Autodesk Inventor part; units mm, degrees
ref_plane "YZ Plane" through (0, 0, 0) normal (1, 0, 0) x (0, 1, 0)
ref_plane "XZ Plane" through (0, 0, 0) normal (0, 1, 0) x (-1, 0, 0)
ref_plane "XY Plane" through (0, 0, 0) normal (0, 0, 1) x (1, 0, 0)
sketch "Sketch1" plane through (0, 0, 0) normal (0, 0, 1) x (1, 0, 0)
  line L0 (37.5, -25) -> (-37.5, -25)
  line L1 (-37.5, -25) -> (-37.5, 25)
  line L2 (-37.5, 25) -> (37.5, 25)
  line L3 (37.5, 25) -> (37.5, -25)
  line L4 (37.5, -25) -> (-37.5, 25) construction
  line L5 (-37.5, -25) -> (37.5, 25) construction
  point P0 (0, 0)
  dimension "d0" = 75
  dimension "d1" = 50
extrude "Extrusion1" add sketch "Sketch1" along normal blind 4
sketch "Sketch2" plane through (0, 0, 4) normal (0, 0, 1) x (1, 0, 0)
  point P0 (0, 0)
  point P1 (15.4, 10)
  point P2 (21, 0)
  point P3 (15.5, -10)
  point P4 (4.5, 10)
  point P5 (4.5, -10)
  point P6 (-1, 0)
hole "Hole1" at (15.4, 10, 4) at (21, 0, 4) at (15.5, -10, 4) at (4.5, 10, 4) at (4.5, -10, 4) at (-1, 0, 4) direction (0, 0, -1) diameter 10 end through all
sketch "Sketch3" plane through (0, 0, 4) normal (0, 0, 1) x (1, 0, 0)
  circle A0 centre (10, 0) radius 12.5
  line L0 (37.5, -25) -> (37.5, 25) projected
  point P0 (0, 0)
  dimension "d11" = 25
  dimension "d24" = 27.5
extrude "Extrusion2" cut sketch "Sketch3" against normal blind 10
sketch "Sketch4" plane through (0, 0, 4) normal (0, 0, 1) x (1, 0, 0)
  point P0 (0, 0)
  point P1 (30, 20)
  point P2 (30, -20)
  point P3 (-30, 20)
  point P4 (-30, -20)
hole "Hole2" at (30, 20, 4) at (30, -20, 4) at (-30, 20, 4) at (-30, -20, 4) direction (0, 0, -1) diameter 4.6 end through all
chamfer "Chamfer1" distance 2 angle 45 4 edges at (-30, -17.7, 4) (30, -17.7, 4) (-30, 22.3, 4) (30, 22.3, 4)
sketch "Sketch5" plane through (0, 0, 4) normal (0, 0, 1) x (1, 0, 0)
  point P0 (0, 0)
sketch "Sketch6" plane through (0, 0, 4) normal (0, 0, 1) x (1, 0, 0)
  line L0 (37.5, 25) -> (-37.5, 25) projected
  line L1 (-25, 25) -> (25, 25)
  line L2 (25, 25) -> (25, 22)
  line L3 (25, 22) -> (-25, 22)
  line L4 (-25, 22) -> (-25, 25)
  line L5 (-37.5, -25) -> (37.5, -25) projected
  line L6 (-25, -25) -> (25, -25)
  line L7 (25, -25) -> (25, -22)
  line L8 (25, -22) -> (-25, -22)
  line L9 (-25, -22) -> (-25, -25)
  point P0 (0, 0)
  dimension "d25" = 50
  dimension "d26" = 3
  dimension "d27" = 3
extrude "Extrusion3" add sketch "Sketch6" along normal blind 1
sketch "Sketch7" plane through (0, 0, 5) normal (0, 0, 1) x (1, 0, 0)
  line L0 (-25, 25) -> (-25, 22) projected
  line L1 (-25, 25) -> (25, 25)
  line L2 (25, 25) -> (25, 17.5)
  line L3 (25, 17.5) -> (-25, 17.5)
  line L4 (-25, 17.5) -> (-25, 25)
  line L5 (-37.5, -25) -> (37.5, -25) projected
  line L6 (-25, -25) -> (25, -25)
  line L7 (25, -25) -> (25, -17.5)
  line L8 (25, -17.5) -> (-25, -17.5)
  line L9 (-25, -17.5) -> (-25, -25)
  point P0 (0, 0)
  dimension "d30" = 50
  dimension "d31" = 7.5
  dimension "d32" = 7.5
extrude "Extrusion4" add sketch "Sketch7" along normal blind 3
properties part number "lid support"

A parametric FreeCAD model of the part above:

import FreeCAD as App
import Part
import Sketcher

V = App.Vector


def edges_at(feature, points):
    """Names of the edges that pass closest to the given points."""
    edges = feature.Shape.Edges
    near = lambda p: min(range(len(edges)), key=lambda i: edges[i].distToShape(Part.Vertex(*p))[0])
    return sorted({f"Edge{near(p) + 1}" for p in points})

doc = App.newDocument("Part")
body = doc.addObject("PartDesign::Body", "Body")

# Sketch on XY plane
sketch1 = body.newObject("Sketcher::SketchObject", "Sketch")
sketch1.AttachmentSupport = (doc.getObject("XY_Plane"), [""])
sketch1.MapMode = "FlatFace"
sketch1.addGeometry([
    Part.LineSegment(V(-37.5, -25, 0), V(37.5, -25, 0)),
    Part.LineSegment(V(37.5, -25, 0), V(37.5, 25, 0)),
    Part.LineSegment(V(37.5, 25, 0), V(-37.5, 25, 0)),
    Part.LineSegment(V(-37.5, 25, 0), V(-37.5, -25, 0)),
], False)
sketch1.addConstraint([
    Sketcher.Constraint("Coincident", 0, 2, 1, 1),
    Sketcher.Constraint("Coincident", 1, 2, 2, 1),
    Sketcher.Constraint("Coincident", 2, 2, 3, 1),
    Sketcher.Constraint("Coincident", 3, 2, 0, 1),
    Sketcher.Constraint("Horizontal", 0),
    Sketcher.Constraint("Vertical", 1),
    Sketcher.Constraint("Horizontal", 2),
    Sketcher.Constraint("Vertical", 3),
    Sketcher.Constraint("Symmetric", 0, 2, 2, 2, -1, 1),
    Sketcher.Constraint("DistanceX", 0, 1, 0, 2, 75.0),
    Sketcher.Constraint("DistanceY", 1, 1, 1, 2, 50.0),
])
pad1 = body.newObject("PartDesign::Pad", "Pad")
pad1.Profile = sketch1
pad1.Length = 4

# Sketch on XY plane
sketch2 = body.newObject("Sketcher::SketchObject", "Sketch001")
sketch2.AttachmentSupport = (doc.getObject("XY_Plane"), [""])
sketch2.MapMode = "FlatFace"
sketch2.AttachmentOffset = App.Placement(V(0, 0, 4), App.Rotation())
sketch2.addGeometry([
    Part.Circle(V(15.4, 10, 0), V(0, 0, 1), 5),  # 0
    Part.Circle(V(21, 0, 0), V(0, 0, 1), 5),  # 1
    Part.Circle(V(15.5, -10, 0), V(0, 0, 1), 5),  # 2
    Part.Circle(V(4.5, 10, 0), V(0, 0, 1), 5),  # 3
    Part.Circle(V(4.5, -10, 0), V(0, 0, 1), 5),  # 4
    Part.Circle(V(-1, 0, 0), V(0, 0, 1), 5),  # 5
], False)
sketch2.addConstraint([
    Sketcher.Constraint("Equal", 0, 1),
    Sketcher.Constraint("Equal", 1, 2),
    Sketcher.Constraint("Equal", 2, 3),
    Sketcher.Constraint("Equal", 3, 4),
    Sketcher.Constraint("Equal", 4, 5),
    Sketcher.Constraint("Symmetric", 3, 3, 4, 3, -1),
    Sketcher.Constraint("PointOnObject", 1, 3, -1),
    Sketcher.Constraint("PointOnObject", 5, 3, -1),
    Sketcher.Constraint("Horizontal", 0, 3, 3, 3),
    Sketcher.Constraint("Horizontal", 2, 3, 4, 3),
    Sketcher.Constraint("Diameter", 0, 10.0),
    Sketcher.Constraint("DistanceY", -1, 1, 0, 3, 10.0),
    Sketcher.Constraint("DistanceX", -1, 1, 1, 3, 21.0),
    Sketcher.Constraint("DistanceX", 5, 3, -1, 1, 1.0),
    Sketcher.Constraint("DistanceX", 3, 3, 2, 3, 11.0),
    Sketcher.Constraint("DistanceX", -1, 1, 0, 3, 15.4),
    Sketcher.Constraint("DistanceX", -1, 1, 2, 3, 15.5),
])
doc.recompute()
hole = body.newObject("PartDesign::Hole", "Hole")
hole.Profile = sketch2
hole.ThreadType = "None"
hole.Diameter = 10
hole.DepthType = "ThroughAll"

# Sketch on XY plane
sketch3 = body.newObject("Sketcher::SketchObject", "Sketch002")
sketch3.AttachmentSupport = (doc.getObject("XY_Plane"), [""])
sketch3.MapMode = "FlatFace"
sketch3.AttachmentOffset = App.Placement(V(0, 0, 4), App.Rotation())
sketch3.addGeometry(Part.Circle(V(10, 0, 0), V(0, 0, 1), 12.5), False)
sketch3.addConstraint([
    Sketcher.Constraint("PointOnObject", 0, 3, -1),
    Sketcher.Constraint("Diameter", 0, 25.0),
    Sketcher.Constraint("DistanceX", -1, 1, 0, 3, 10.0),
])
pocket1 = body.newObject("PartDesign::Pocket", "Pocket")
pocket1.Profile = sketch3
pocket1.Length = 10

# Sketch on XY plane
sketch4 = body.newObject("Sketcher::SketchObject", "Sketch003")
sketch4.AttachmentSupport = (doc.getObject("XY_Plane"), [""])
sketch4.MapMode = "FlatFace"
sketch4.AttachmentOffset = App.Placement(V(0, 0, 4), App.Rotation())
sketch4.addGeometry([
    Part.Circle(V(30, 20, 0), V(0, 0, 1), 2.3),
    Part.Circle(V(30, -20, 0), V(0, 0, 1), 2.3),
    Part.Circle(V(-30, 20, 0), V(0, 0, 1), 2.3),
    Part.Circle(V(-30, -20, 0), V(0, 0, 1), 2.3),
], False)
sketch4.addConstraint([
    Sketcher.Constraint("Equal", 0, 1),
    Sketcher.Constraint("Equal", 1, 2),
    Sketcher.Constraint("Equal", 2, 3),
    Sketcher.Constraint("Symmetric", 1, 3, 2, 3, -1, 1),
    Sketcher.Constraint("Symmetric", 0, 3, 3, 3, -1, 1),
    Sketcher.Constraint("Symmetric", 0, 3, 2, 3, -2),
    Sketcher.Constraint("Diameter", 0, 4.6),
    Sketcher.Constraint("DistanceX", -1, 1, 0, 3, 30.0),
    Sketcher.Constraint("DistanceY", -1, 1, 0, 3, 20.0),
])
doc.recompute()
hole2 = body.newObject("PartDesign::Hole", "Hole001")
hole2.Profile = sketch4
hole2.ThreadType = "None"
hole2.Diameter = 4.6
hole2.DepthType = "ThroughAll"
doc.recompute()

chamfer = body.newObject("PartDesign::Chamfer", "Chamfer")
chamfer.Base = (hole2, edges_at(hole2, [
    (-30, -17.7, 4),
    (30, -17.7, 4),
    (-30, 22.3, 4),
    (30, 22.3, 4),
]))
chamfer.Size = 2

# Sketch on XY plane
sketch5 = body.newObject("Sketcher::SketchObject", "Sketch004")
sketch5.AttachmentSupport = (doc.getObject("XY_Plane"), [""])
sketch5.MapMode = "FlatFace"
sketch5.AttachmentOffset = App.Placement(V(0, 0, 4), App.Rotation())
sketch5.addGeometry([
    Part.LineSegment(V(25, 22, 0), V(25, 25, 0)),  # 0
    Part.LineSegment(V(25, 25, 0), V(-25, 25, 0)),  # 1
    Part.LineSegment(V(-25, 25, 0), V(-25, 22, 0)),  # 2
    Part.LineSegment(V(-25, 22, 0), V(25, 22, 0)),  # 3
    Part.LineSegment(V(-25, -22, 0), V(-25, -25, 0)),  # 4
    Part.LineSegment(V(-25, -25, 0), V(25, -25, 0)),  # 5
    Part.LineSegment(V(25, -25, 0), V(25, -22, 0)),  # 6
    Part.LineSegment(V(25, -22, 0), V(-25, -22, 0)),  # 7
], False)
sketch5.addConstraint([
    Sketcher.Constraint("Coincident", 0, 2, 1, 1),
    Sketcher.Constraint("Coincident", 1, 2, 2, 1),
    Sketcher.Constraint("Coincident", 2, 2, 3, 1),
    Sketcher.Constraint("Coincident", 3, 2, 0, 1),
    Sketcher.Constraint("Coincident", 4, 2, 5, 1),
    Sketcher.Constraint("Coincident", 5, 2, 6, 1),
    Sketcher.Constraint("Coincident", 6, 2, 7, 1),
    Sketcher.Constraint("Coincident", 7, 2, 4, 1),
    Sketcher.Constraint("Vertical", 0),
    Sketcher.Constraint("Horizontal", 1),
    Sketcher.Constraint("Vertical", 2),
    Sketcher.Constraint("Horizontal", 3),
    Sketcher.Constraint("Vertical", 4),
    Sketcher.Constraint("Horizontal", 5),
    Sketcher.Constraint("Vertical", 6),
    Sketcher.Constraint("Horizontal", 7),
    Sketcher.Constraint("Symmetric", 0, 2, 4, 2, -1, 1),
    Sketcher.Constraint("Symmetric", 2, 2, 6, 2, -1, 1),
    Sketcher.Constraint("Vertical", 2, 2, 4, 2),
    Sketcher.Constraint("DistanceX", 1, 2, 1, 1, 50.0),
    Sketcher.Constraint("DistanceY", 0, 1, 0, 2, 3.0),
    Sketcher.Constraint("DistanceY", 4, 2, 1, 2, 50.0),
])
pad2 = body.newObject("PartDesign::Pad", "Pad001")
pad2.Profile = sketch5
pad2.Length = 1

# Sketch on XY plane
sketch6 = body.newObject("Sketcher::SketchObject", "Sketch005")
sketch6.AttachmentSupport = (doc.getObject("XY_Plane"), [""])
sketch6.MapMode = "FlatFace"
sketch6.AttachmentOffset = App.Placement(V(0, 0, 5), App.Rotation())
sketch6.addGeometry([
    Part.LineSegment(V(25, 25, 0), V(-25, 25, 0)),  # 0
    Part.LineSegment(V(-25, 25, 0), V(-25, 17.5, 0)),  # 1
    Part.LineSegment(V(-25, 17.5, 0), V(25, 17.5, 0)),  # 2
    Part.LineSegment(V(25, 17.5, 0), V(25, 25, 0)),  # 3
    Part.LineSegment(V(-25, -17.5, 0), V(-25, -25, 0)),  # 4
    Part.LineSegment(V(-25, -25, 0), V(25, -25, 0)),  # 5
    Part.LineSegment(V(25, -25, 0), V(25, -17.5, 0)),  # 6
    Part.LineSegment(V(25, -17.5, 0), V(-25, -17.5, 0)),  # 7
], False)
sketch6.addConstraint([
    Sketcher.Constraint("Coincident", 0, 2, 1, 1),
    Sketcher.Constraint("Coincident", 1, 2, 2, 1),
    Sketcher.Constraint("Coincident", 2, 2, 3, 1),
    Sketcher.Constraint("Coincident", 3, 2, 0, 1),
    Sketcher.Constraint("Coincident", 4, 2, 5, 1),
    Sketcher.Constraint("Coincident", 5, 2, 6, 1),
    Sketcher.Constraint("Coincident", 6, 2, 7, 1),
    Sketcher.Constraint("Coincident", 7, 2, 4, 1),
    Sketcher.Constraint("Horizontal", 0),
    Sketcher.Constraint("Vertical", 1),
    Sketcher.Constraint("Horizontal", 2),
    Sketcher.Constraint("Vertical", 3),
    Sketcher.Constraint("Vertical", 4),
    Sketcher.Constraint("Horizontal", 5),
    Sketcher.Constraint("Vertical", 6),
    Sketcher.Constraint("Horizontal", 7),
    Sketcher.Constraint("Symmetric", 3, 2, 4, 2, -1, 1),
    Sketcher.Constraint("Symmetric", 1, 2, 6, 2, -1, 1),
    Sketcher.Constraint("Vertical", 1, 2, 4, 2),
    Sketcher.Constraint("DistanceX", 0, 2, 0, 1, 50.0),
    Sketcher.Constraint("DistanceY", 1, 2, 1, 1, 7.5),
    Sketcher.Constraint("DistanceY", 4, 2, 0, 2, 50.0),
])
pad3 = body.newObject("PartDesign::Pad", "Pad002")
pad3.Profile = sketch6
pad3.Length = 3

doc.recompute()
